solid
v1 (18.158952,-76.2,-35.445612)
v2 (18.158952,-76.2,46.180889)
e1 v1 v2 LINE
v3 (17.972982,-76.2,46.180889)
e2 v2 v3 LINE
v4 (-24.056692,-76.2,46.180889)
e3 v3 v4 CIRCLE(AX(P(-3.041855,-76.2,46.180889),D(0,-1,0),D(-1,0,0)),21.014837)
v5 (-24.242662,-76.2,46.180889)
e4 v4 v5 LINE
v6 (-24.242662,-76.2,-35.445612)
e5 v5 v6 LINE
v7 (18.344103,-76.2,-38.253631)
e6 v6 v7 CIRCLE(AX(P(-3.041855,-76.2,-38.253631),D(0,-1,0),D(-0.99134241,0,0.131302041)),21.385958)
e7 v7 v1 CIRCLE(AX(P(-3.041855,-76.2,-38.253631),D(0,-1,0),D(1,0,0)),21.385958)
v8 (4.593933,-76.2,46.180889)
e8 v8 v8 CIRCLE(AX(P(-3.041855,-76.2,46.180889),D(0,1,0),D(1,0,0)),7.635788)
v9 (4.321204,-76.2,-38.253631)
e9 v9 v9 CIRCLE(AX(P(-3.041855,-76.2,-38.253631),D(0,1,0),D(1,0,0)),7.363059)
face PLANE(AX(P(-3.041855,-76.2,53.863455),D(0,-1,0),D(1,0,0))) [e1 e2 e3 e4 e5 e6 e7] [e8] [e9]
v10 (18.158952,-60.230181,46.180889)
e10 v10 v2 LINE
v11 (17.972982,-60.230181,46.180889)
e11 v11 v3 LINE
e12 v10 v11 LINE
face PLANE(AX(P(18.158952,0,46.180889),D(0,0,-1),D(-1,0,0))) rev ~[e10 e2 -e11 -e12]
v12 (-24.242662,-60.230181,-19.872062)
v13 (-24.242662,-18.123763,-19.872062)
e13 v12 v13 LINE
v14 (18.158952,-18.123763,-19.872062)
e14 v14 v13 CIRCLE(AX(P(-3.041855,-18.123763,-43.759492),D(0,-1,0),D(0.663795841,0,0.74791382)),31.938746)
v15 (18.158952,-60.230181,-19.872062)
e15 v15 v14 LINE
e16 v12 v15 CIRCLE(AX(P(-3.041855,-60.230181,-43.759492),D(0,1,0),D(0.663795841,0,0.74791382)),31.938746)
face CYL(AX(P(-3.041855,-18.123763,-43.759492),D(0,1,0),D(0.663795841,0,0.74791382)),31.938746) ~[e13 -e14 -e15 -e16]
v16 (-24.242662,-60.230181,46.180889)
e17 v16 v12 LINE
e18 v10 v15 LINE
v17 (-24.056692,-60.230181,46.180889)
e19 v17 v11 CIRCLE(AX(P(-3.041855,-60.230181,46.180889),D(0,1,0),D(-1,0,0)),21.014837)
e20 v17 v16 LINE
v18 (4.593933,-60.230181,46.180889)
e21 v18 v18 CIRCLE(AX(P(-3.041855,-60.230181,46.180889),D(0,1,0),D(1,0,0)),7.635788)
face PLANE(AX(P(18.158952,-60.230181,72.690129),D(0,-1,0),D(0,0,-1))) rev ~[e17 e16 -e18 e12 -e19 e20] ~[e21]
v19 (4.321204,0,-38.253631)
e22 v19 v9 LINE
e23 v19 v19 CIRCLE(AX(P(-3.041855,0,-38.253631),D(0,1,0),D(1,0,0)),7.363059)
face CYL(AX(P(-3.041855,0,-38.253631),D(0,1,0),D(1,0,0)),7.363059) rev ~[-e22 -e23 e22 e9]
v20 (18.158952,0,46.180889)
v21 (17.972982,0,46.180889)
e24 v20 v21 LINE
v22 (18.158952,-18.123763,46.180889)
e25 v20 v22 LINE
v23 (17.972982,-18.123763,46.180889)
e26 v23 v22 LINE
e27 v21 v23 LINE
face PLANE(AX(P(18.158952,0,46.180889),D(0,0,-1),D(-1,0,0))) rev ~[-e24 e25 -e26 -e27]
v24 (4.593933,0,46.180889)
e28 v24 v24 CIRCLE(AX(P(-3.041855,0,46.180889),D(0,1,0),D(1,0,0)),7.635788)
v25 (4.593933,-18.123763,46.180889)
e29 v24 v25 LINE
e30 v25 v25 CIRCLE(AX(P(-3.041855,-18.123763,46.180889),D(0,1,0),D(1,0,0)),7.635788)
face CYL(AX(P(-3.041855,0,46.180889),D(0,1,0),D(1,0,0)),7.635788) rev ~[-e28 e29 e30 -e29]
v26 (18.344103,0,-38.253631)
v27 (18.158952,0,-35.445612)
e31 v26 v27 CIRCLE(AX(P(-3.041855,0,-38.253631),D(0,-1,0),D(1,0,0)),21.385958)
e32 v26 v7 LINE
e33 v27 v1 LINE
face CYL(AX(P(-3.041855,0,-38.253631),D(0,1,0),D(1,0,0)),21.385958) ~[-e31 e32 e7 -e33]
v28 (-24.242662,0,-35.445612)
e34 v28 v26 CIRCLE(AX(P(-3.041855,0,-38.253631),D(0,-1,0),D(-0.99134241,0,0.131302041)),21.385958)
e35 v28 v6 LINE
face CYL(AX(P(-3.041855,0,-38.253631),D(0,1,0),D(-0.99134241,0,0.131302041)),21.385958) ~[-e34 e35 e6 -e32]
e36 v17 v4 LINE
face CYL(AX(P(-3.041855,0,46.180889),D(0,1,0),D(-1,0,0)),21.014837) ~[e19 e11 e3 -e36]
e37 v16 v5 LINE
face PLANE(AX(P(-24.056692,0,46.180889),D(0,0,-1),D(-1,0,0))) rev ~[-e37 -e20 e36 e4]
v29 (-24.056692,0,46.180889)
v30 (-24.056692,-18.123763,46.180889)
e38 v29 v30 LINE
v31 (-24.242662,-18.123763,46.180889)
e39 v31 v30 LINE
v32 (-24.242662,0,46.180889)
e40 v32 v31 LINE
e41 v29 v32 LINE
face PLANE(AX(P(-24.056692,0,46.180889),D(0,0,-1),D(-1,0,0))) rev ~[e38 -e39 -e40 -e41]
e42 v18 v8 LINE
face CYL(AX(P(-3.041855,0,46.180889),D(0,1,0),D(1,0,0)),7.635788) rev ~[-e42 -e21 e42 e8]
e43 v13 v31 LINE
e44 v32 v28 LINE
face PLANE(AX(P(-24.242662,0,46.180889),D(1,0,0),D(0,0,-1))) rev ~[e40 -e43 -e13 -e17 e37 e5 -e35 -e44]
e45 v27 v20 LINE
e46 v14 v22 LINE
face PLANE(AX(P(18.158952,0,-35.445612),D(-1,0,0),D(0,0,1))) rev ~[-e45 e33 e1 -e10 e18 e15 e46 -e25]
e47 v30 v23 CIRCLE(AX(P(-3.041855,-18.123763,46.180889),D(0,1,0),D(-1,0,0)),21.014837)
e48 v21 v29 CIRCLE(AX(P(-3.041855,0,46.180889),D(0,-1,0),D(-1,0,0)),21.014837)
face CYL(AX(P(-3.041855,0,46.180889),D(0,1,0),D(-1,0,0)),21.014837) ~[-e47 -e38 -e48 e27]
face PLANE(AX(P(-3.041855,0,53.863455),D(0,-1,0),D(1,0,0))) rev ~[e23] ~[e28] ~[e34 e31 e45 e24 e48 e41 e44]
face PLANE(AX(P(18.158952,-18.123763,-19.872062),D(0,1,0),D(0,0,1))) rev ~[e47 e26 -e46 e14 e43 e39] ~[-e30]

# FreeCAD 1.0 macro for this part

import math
import FreeCAD as App
import Part
import Sketcher
from FreeCAD import Vector
Q = App.Units.Quantity


def add_polygon(sketch, points):
    """Adds a closed chain of lines whose ends are joined by coincident constraints."""
    first, n = sketch.GeometryCount, len(points)
    for a, b in zip(points, points[1:] + points[:1]):
        sketch.addGeometry(Part.LineSegment(App.Vector(*a, 0), App.Vector(*b, 0)), False)
    for i in range(n):
        sketch.addConstraint(Sketcher.Constraint("Coincident", first + i, 2, first + (i + 1) % n, 1))

doc = App.newDocument("Part")
body = doc.addObject("PartDesign::Body", "Body")

# Sketch on XZ plane
sketch1 = body.newObject("Sketcher::SketchObject", "Sketch")
sketch1.AttachmentSupport = (doc.getObject("XZ_Plane"), [""])
sketch1.MapMode = "FlatFace"
sketch1.addGeometry(Part.ArcOfCircle(Part.Circle(Vector(-3.04, 46.18, 0), Vector(0, 0, 1), 21.01), math.radians(0), math.radians(180)), False)
sketch1.addGeometry(Part.LineSegment(Vector(-24.06, 46.18, 0), Vector(-24.24, 46.18, 0)), False)
sketch1.addGeometry(Part.LineSegment(Vector(-24.24, 46.18, 0), Vector(-24.24, -35.45, 0)), False)
sketch1.addGeometry(Part.ArcOfCircle(Part.Circle(Vector(-3.04, -38.25, 0), Vector(0, 0, 1), 21.39), math.radians(172), math.radians(360)), False)
sketch1.addGeometry(Part.ArcOfCircle(Part.Circle(Vector(-3.04, -38.25, 0), Vector(0, 0, 1), 21.39), math.radians(0), math.radians(7.54)), False)
sketch1.addGeometry(Part.LineSegment(Vector(18.16, -35.45, 0), Vector(18.16, 46.18, 0)), False)
sketch1.addGeometry(Part.LineSegment(Vector(18.16, 46.18, 0), Vector(17.97, 46.18, 0)), False)
sketch1.addGeometry(Part.Circle(Vector(-3.04, 46.18, 0), Vector(0, 0, 1), 7.64), False)
sketch1.addGeometry(Part.Circle(Vector(-3.04, -38.25, 0), Vector(0, 0, 1), 7.36), False)
sketch1.addConstraint(Sketcher.Constraint("Coincident", 0, 2, 1, 1))
sketch1.addConstraint(Sketcher.Constraint("Coincident", 1, 2, 2, 1))
sketch1.addConstraint(Sketcher.Constraint("Coincident", 2, 2, 3, 1))
sketch1.addConstraint(Sketcher.Constraint("Tangent", 3, 2, 4, 1))
sketch1.addConstraint(Sketcher.Constraint("Coincident", 4, 2, 5, 1))
sketch1.addConstraint(Sketcher.Constraint("Coincident", 5, 2, 6, 1))
sketch1.addConstraint(Sketcher.Constraint("Coincident", 6, 2, 0, 1))
sketch1.addConstraint(Sketcher.Constraint("Horizontal", 1))
sketch1.addConstraint(Sketcher.Constraint("Vertical", 2))
sketch1.addConstraint(Sketcher.Constraint("Vertical", 5))
sketch1.addConstraint(Sketcher.Constraint("Horizontal", 6))
sketch1.addConstraint(Sketcher.Constraint("Coincident", 7, 3, 0, 3))
sketch1.addConstraint(Sketcher.Constraint("Coincident", 8, 3, 3, 3))
sketch1.addConstraint(Sketcher.Constraint("Equal", 3, 4))
sketch1.addConstraint(Sketcher.Constraint("Horizontal", 7, 3, 0, 2))
sketch1.addConstraint(Sketcher.Constraint("Horizontal", 8, 3, 3, 2))
sketch1.addConstraint(Sketcher.Constraint("Horizontal", 2, 2, 4, 2))
sketch1.addConstraint(Sketcher.Constraint("Horizontal", 1, 2, 5, 2))
sketch1.addConstraint(Sketcher.Constraint("Vertical", 0, 3, 3, 3))
sketch1.addConstraint(Sketcher.Constraint("Diameter", 7, Q("15.271576 mm")))
sketch1.addConstraint(Sketcher.Constraint("Diameter", 8, Q("14.726117 mm")))
sketch1.addConstraint(Sketcher.Constraint("DistanceY", 2, 2, 2, 1, Q("81.626501 mm")))
sketch1.addConstraint(Sketcher.Constraint("Radius", 0, Q("21.014837 mm")))
sketch1.addConstraint(Sketcher.Constraint("Radius", 3, Q("21.385958 mm")))
sketch1.addConstraint(Sketcher.Constraint("DistanceX", 1, 2, 1, 1, Q("0.18597 mm")))
sketch1.addConstraint(Sketcher.Constraint("DistanceY", -1, 1, 0, 3, Q("46.180889 mm")))
sketch1.addConstraint(Sketcher.Constraint("DistanceX", 0, 2, -1, 1, Q("24.056692 mm")))
pad1 = body.newObject("PartDesign::Pad", "Pad")
pad1.Profile = sketch1
pad1.Length = Q("3 in")

# Sketch on YZ plane
sketch2 = body.newObject("Sketcher::SketchObject", "Sketch001")
sketch2.AttachmentSupport = (doc.getObject("YZ_Plane"), [""])
sketch2.MapMode = "FlatFace"
sketch2.AttachmentOffset = App.Placement(Vector(0, 0, 18.158952), App.Rotation())
add_polygon(sketch2, [(-60, 73), (-60, -20), (-18, -20), (-18, 73)])  # lines 0-3
sketch2.addConstraint(Sketcher.Constraint("Vertical", 0))
sketch2.addConstraint(Sketcher.Constraint("Horizontal", 1))
sketch2.addConstraint(Sketcher.Constraint("Vertical", 2))
sketch2.addConstraint(Sketcher.Constraint("Horizontal", 3))
sketch2.addConstraint(Sketcher.Constraint("DistanceY", 0, 2, 0, 1, Q("92.562191 mm")))
sketch2.addConstraint(Sketcher.Constraint("DistanceX", 1, 1, 1, 2, Q("42.106418 mm")))
sketch2.addConstraint(Sketcher.Constraint("DistanceX", 0, 2, -1, 1, Q("60.230181 mm")))
sketch2.addConstraint(Sketcher.Constraint("DistanceY", 0, 2, -1, 1, Q("19.872062 mm")))
pocket1 = body.newObject("PartDesign::Pocket", "Pocket")
pocket1.Profile = sketch2
pocket1.Length = Q("5 in")

# Sketch on XZ plane
sketch3 = body.newObject("Sketcher::SketchObject", "Sketch002")
sketch3.AttachmentSupport = (doc.getObject("XZ_Plane"), [""])
sketch3.MapMode = "FlatFace"
sketch3.AttachmentOffset = App.Placement(Vector(0, 0, 18.123763), App.Rotation())
sketch3.addGeometry(Part.LineSegment(Vector(-24, -20, 0), Vector(18, -20, 0)), False)
sketch3.addGeometry(Part.ArcOfCircle(Part.Circle(Vector(-3, -44, 0), Vector(0, 0, 1), 32), math.radians(48), math.radians(132)), False)
sketch3.addConstraint(Sketcher.Constraint("Coincident", 0, 1, 1, 2))
sketch3.addConstraint(Sketcher.Constraint("Coincident", 1, 1, 0, 2))
sketch3.addConstraint(Sketcher.Constraint("Horizontal", 0))
sketch3.addConstraint(Sketcher.Constraint("Radius", 1, Q("31.938746 mm")))
sketch3.addConstraint(Sketcher.Constraint("DistanceX", 0, 1, 0, 2, Q("42.401614 mm")))
sketch3.addConstraint(Sketcher.Constraint("DistanceY", 1, 3, -1, 1, Q("43.759492 mm")))
sketch3.addConstraint(Sketcher.Constraint("DistanceX", 0, 1, -1, 1, Q("24.242662 mm")))
pad2 = body.newObject("PartDesign::Pad", "Pad001")
pad2.Profile = sketch3
pad2.Length = Q("1.8 in")

doc.recompute()
